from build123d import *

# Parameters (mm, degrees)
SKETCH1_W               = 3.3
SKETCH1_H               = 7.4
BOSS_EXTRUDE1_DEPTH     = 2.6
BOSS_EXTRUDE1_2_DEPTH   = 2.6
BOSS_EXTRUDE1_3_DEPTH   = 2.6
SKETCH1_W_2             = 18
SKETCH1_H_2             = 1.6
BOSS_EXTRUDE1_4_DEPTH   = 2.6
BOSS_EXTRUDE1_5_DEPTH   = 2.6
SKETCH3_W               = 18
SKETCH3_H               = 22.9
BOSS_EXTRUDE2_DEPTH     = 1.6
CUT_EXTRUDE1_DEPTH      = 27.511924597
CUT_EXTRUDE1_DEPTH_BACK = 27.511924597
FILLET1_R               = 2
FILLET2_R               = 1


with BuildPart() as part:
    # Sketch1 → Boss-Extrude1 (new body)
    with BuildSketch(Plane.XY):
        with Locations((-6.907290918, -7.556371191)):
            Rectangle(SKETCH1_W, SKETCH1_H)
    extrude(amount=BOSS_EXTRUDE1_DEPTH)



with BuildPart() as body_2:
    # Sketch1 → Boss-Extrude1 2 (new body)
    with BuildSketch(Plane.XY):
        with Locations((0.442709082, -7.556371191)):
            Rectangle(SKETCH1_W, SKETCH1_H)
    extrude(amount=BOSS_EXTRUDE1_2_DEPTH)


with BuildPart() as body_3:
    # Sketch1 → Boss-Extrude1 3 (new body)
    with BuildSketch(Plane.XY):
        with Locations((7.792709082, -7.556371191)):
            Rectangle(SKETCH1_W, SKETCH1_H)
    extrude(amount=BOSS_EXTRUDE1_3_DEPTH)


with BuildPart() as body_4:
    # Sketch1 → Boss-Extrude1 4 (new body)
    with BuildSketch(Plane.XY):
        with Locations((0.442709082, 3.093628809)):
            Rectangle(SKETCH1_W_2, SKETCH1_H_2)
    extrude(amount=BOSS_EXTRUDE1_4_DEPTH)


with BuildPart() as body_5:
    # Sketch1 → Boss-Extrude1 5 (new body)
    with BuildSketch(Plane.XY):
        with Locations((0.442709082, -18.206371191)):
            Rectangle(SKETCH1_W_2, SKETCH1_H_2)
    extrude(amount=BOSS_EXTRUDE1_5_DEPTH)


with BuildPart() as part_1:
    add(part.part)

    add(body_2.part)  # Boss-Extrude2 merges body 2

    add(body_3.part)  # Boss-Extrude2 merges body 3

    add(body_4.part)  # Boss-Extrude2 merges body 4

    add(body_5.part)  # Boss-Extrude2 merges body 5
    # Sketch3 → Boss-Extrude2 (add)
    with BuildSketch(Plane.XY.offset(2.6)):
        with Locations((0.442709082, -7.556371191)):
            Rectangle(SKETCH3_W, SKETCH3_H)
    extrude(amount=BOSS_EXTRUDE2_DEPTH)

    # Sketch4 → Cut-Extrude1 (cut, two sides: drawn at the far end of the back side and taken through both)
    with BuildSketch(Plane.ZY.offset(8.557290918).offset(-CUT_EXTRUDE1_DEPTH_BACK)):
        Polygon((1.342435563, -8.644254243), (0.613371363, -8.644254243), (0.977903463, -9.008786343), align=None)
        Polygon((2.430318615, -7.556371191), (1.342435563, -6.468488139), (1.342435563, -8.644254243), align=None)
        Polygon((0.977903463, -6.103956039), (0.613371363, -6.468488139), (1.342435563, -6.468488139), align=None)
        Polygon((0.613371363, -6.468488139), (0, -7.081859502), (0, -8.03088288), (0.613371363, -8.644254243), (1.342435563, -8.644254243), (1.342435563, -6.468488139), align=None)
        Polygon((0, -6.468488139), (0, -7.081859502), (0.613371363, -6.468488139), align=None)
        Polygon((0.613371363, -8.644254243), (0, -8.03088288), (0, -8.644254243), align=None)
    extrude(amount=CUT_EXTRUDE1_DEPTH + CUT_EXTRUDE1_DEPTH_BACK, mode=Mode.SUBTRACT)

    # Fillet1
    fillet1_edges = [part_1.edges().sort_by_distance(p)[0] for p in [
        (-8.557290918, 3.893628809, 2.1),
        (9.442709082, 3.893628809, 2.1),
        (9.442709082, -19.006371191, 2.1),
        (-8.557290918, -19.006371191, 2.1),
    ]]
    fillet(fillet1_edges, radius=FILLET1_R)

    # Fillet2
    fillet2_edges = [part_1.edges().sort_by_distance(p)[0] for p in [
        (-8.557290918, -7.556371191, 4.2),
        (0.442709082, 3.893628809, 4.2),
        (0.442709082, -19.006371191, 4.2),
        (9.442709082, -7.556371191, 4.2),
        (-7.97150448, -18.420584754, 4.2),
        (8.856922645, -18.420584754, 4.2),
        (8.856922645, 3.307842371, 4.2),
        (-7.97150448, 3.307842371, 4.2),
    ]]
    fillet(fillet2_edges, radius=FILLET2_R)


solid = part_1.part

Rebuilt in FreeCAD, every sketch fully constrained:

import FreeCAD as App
import Part
import Sketcher
from FreeCAD import Vector
Q = App.Units.Quantity


def edges_at(feature, points):
    """Names of the edges that pass closest to the given points."""
    edges = feature.Shape.Edges
    near = lambda p: min(range(len(edges)), key=lambda i: edges[i].distToShape(Part.Vertex(*p))[0])
    return sorted({f"Edge{near(p) + 1}" for p in points})

doc = App.newDocument("Part")
body = doc.addObject("PartDesign::Body", "Body")

sketch1 = body.newObject("Sketcher::SketchObject", "Sketch")
sketch1.AttachmentSupport = (doc.getObject("XY_Plane"), [""])
sketch1.MapMode = "FlatFace"
sketch1.addGeometry(Part.LineSegment(Vector(-8.6, -3.9, 0), Vector(-8.6, -11.3, 0)), False)
sketch1.addGeometry(Part.LineSegment(Vector(-8.6, -11.3, 0), Vector(-5.3, -11.3, 0)), False)
sketch1.addGeometry(Part.LineSegment(Vector(-5.3, -11.3, 0), Vector(-5.3, -3.9, 0)), False)
sketch1.addGeometry(Part.LineSegment(Vector(-5.3, -3.9, 0), Vector(-8.6, -3.9, 0)), False)
sketch1.addConstraint(Sketcher.Constraint("Coincident", 0, 2, 1, 1))
sketch1.addConstraint(Sketcher.Constraint("Coincident", 1, 2, 2, 1))
sketch1.addConstraint(Sketcher.Constraint("Coincident", 2, 2, 3, 1))
sketch1.addConstraint(Sketcher.Constraint("Coincident", 3, 2, 0, 1))
sketch1.addConstraint(Sketcher.Constraint("Vertical", 0))
sketch1.addConstraint(Sketcher.Constraint("Horizontal", 1))
sketch1.addConstraint(Sketcher.Constraint("Vertical", 2))
sketch1.addConstraint(Sketcher.Constraint("Horizontal", 3))
sketch1.addConstraint(Sketcher.Constraint("DistanceX", 1, 1, 1, 2, Q("3.3 mm")))
sketch1.addConstraint(Sketcher.Constraint("DistanceY", 0, 2, 0, 1, Q("7.4 mm")))
sketch1.addConstraint(Sketcher.Constraint("DistanceX", 0, 2, -1, 1, Q("8.557291 mm")))
sketch1.addConstraint(Sketcher.Constraint("DistanceY", 0, 2, -1, 1, Q("11.256371 mm")))
pad1 = body.newObject("PartDesign::Pad", "Pad")
pad1.Profile = sketch1
pad1.Length = 2.6
body2 = doc.addObject("PartDesign::Body", "Body001")

sketch2 = body2.newObject("Sketcher::SketchObject", "Sketch001")
sketch2.AttachmentSupport = (doc.getObject("XY_Plane001"), [""])
sketch2.MapMode = "FlatFace"
sketch2.addGeometry(Part.LineSegment(Vector(-1.2, -3.9, 0), Vector(-1.2, -11.3, 0)), False)
sketch2.addGeometry(Part.LineSegment(Vector(-1.2, -11.3, 0), Vector(2.1, -11.3, 0)), False)
sketch2.addGeometry(Part.LineSegment(Vector(2.1, -11.3, 0), Vector(2.1, -3.9, 0)), False)
sketch2.addGeometry(Part.LineSegment(Vector(2.1, -3.9, 0), Vector(-1.2, -3.9, 0)), False)
sketch2.addConstraint(Sketcher.Constraint("Coincident", 0, 2, 1, 1))
sketch2.addConstraint(Sketcher.Constraint("Coincident", 1, 2, 2, 1))
sketch2.addConstraint(Sketcher.Constraint("Coincident", 2, 2, 3, 1))
sketch2.addConstraint(Sketcher.Constraint("Coincident", 3, 2, 0, 1))
sketch2.addConstraint(Sketcher.Constraint("Vertical", 0))
sketch2.addConstraint(Sketcher.Constraint("Horizontal", 1))
sketch2.addConstraint(Sketcher.Constraint("Vertical", 2))
sketch2.addConstraint(Sketcher.Constraint("Horizontal", 3))
sketch2.addConstraint(Sketcher.Constraint("DistanceX", 1, 1, 1, 2, Q("3.3 mm")))
sketch2.addConstraint(Sketcher.Constraint("DistanceY", 0, 2, 0, 1, Q("7.4 mm")))
sketch2.addConstraint(Sketcher.Constraint("DistanceX", 0, 2, -1, 1, Q("1.207291 mm")))
sketch2.addConstraint(Sketcher.Constraint("DistanceY", 0, 2, -1, 1, Q("11.256371 mm")))
pad2 = body2.newObject("PartDesign::Pad", "Pad001")
pad2.Profile = sketch2
pad2.Length = 2.6
body3 = doc.addObject("PartDesign::Body", "Body002")

sketch3 = body3.newObject("Sketcher::SketchObject", "Sketch002")
sketch3.AttachmentSupport = (doc.getObject("XY_Plane002"), [""])
sketch3.MapMode = "FlatFace"
sketch3.addGeometry(Part.LineSegment(Vector(6.1, -3.9, 0), Vector(6.1, -11.3, 0)), False)
sketch3.addGeometry(Part.LineSegment(Vector(6.1, -11.3, 0), Vector(9.4, -11.3, 0)), False)
sketch3.addGeometry(Part.LineSegment(Vector(9.4, -11.3, 0), Vector(9.4, -3.9, 0)), False)
sketch3.addGeometry(Part.LineSegment(Vector(9.4, -3.9, 0), Vector(6.1, -3.9, 0)), False)
sketch3.addConstraint(Sketcher.Constraint("Coincident", 0, 2, 1, 1))
sketch3.addConstraint(Sketcher.Constraint("Coincident", 1, 2, 2, 1))
sketch3.addConstraint(Sketcher.Constraint("Coincident", 2, 2, 3, 1))
sketch3.addConstraint(Sketcher.Constraint("Coincident", 3, 2, 0, 1))
sketch3.addConstraint(Sketcher.Constraint("Vertical", 0))
sketch3.addConstraint(Sketcher.Constraint("Horizontal", 1))
sketch3.addConstraint(Sketcher.Constraint("Vertical", 2))
sketch3.addConstraint(Sketcher.Constraint("Horizontal", 3))
sketch3.addConstraint(Sketcher.Constraint("DistanceX", 1, 1, 1, 2, Q("3.3 mm")))
sketch3.addConstraint(Sketcher.Constraint("DistanceY", 0, 2, 0, 1, Q("7.4 mm")))
sketch3.addConstraint(Sketcher.Constraint("DistanceX", -1, 1, 0, 2, Q("6.142709 mm")))
sketch3.addConstraint(Sketcher.Constraint("DistanceY", 0, 2, -1, 1, Q("11.256371 mm")))
pad3 = body3.newObject("PartDesign::Pad", "Pad002")
pad3.Profile = sketch3
pad3.Length = 2.6
body4 = doc.addObject("PartDesign::Body", "Body003")

sketch4 = body4.newObject("Sketcher::SketchObject", "Sketch003")
sketch4.AttachmentSupport = (doc.getObject("XY_Plane003"), [""])
sketch4.MapMode = "FlatFace"
sketch4.addGeometry(Part.LineSegment(Vector(-8.6, 3.9, 0), Vector(-8.6, 2.3, 0)), False)
sketch4.addGeometry(Part.LineSegment(Vector(-8.6, 2.3, 0), Vector(9.4, 2.3, 0)), False)
sketch4.addGeometry(Part.LineSegment(Vector(9.4, 2.3, 0), Vector(9.4, 3.9, 0)), False)
sketch4.addGeometry(Part.LineSegment(Vector(9.4, 3.9, 0), Vector(-8.6, 3.9, 0)), False)
sketch4.addConstraint(Sketcher.Constraint("Coincident", 0, 2, 1, 1))
sketch4.addConstraint(Sketcher.Constraint("Coincident", 1, 2, 2, 1))
sketch4.addConstraint(Sketcher.Constraint("Coincident", 2, 2, 3, 1))
sketch4.addConstraint(Sketcher.Constraint("Coincident", 3, 2, 0, 1))
sketch4.addConstraint(Sketcher.Constraint("Vertical", 0))
sketch4.addConstraint(Sketcher.Constraint("Horizontal", 1))
sketch4.addConstraint(Sketcher.Constraint("Vertical", 2))
sketch4.addConstraint(Sketcher.Constraint("Horizontal", 3))
sketch4.addConstraint(Sketcher.Constraint("DistanceX", 1, 1, 1, 2, Q("18 mm")))
sketch4.addConstraint(Sketcher.Constraint("DistanceY", 0, 2, 0, 1, Q("1.6 mm")))
sketch4.addConstraint(Sketcher.Constraint("DistanceX", 0, 2, -1, 1, Q("8.557291 mm")))
sketch4.addConstraint(Sketcher.Constraint("DistanceY", -1, 1, 0, 2, Q("2.293629 mm")))
pad4 = body4.newObject("PartDesign::Pad", "Pad003")
pad4.Profile = sketch4
pad4.Length = 2.6
body5 = doc.addObject("PartDesign::Body", "Body004")

sketch5 = body5.newObject("Sketcher::SketchObject", "Sketch004")
sketch5.AttachmentSupport = (doc.getObject("XY_Plane004"), [""])
sketch5.MapMode = "FlatFace"
sketch5.addGeometry(Part.LineSegment(Vector(-8.6, -17.4, 0), Vector(-8.6, -19, 0)), False)
sketch5.addGeometry(Part.LineSegment(Vector(-8.6, -19, 0), Vector(9.4, -19, 0)), False)
sketch5.addGeometry(Part.LineSegment(Vector(9.4, -19, 0), Vector(9.4, -17.4, 0)), False)
sketch5.addGeometry(Part.LineSegment(Vector(9.4, -17.4, 0), Vector(-8.6, -17.4, 0)), False)
sketch5.addConstraint(Sketcher.Constraint("Coincident", 0, 2, 1, 1))
sketch5.addConstraint(Sketcher.Constraint("Coincident", 1, 2, 2, 1))
sketch5.addConstraint(Sketcher.Constraint("Coincident", 2, 2, 3, 1))
sketch5.addConstraint(Sketcher.Constraint("Coincident", 3, 2, 0, 1))
sketch5.addConstraint(Sketcher.Constraint("Vertical", 0))
sketch5.addConstraint(Sketcher.Constraint("Horizontal", 1))
sketch5.addConstraint(Sketcher.Constraint("Vertical", 2))
sketch5.addConstraint(Sketcher.Constraint("Horizontal", 3))
sketch5.addConstraint(Sketcher.Constraint("DistanceX", 1, 1, 1, 2, Q("18 mm")))
sketch5.addConstraint(Sketcher.Constraint("DistanceY", 0, 2, 0, 1, Q("1.6 mm")))
sketch5.addConstraint(Sketcher.Constraint("DistanceX", 0, 2, -1, 1, Q("8.557291 mm")))
sketch5.addConstraint(Sketcher.Constraint("DistanceY", 0, 2, -1, 1, Q("19.006371 mm")))
pad5 = body5.newObject("PartDesign::Pad", "Pad004")
pad5.Profile = sketch5
pad5.Length = 2.6
body.AllowCompound = True
doc.recompute()

boolean = body.newObject("PartDesign::Boolean", "Boolean")
boolean.Type = "Fuse"
boolean.addObjects([body2])
doc.recompute()

boolean2 = body.newObject("PartDesign::Boolean", "Boolean001")
boolean2.Type = "Fuse"
boolean2.addObjects([body3])
doc.recompute()

boolean3 = body.newObject("PartDesign::Boolean", "Boolean002")
boolean3.Type = "Fuse"
boolean3.addObjects([body4])
doc.recompute()

boolean4 = body.newObject("PartDesign::Boolean", "Boolean003")
boolean4.Type = "Fuse"
boolean4.addObjects([body5])

sketch6 = body.newObject("Sketcher::SketchObject", "Sketch005")
sketch6.AttachmentSupport = (doc.getObject("XY_Plane"), [""])
sketch6.MapMode = "FlatFace"
sketch6.AttachmentOffset = App.Placement(Vector(0, 0, 2.6), App.Rotation())
sketch6.addGeometry(Part.LineSegment(Vector(-9, 4, 0), Vector(-9, -19, 0)), False)
sketch6.addGeometry(Part.LineSegment(Vector(-9, -19, 0), Vector(9, -19, 0)), False)
sketch6.addGeometry(Part.LineSegment(Vector(9, -19, 0), Vector(9, 4, 0)), False)
sketch6.addGeometry(Part.LineSegment(Vector(9, 4, 0), Vector(-9, 4, 0)), False)
sketch6.addConstraint(Sketcher.Constraint("Coincident", 0, 2, 1, 1))
sketch6.addConstraint(Sketcher.Constraint("Coincident", 1, 2, 2, 1))
sketch6.addConstraint(Sketcher.Constraint("Coincident", 2, 2, 3, 1))
sketch6.addConstraint(Sketcher.Constraint("Coincident", 3, 2, 0, 1))
sketch6.addConstraint(Sketcher.Constraint("Vertical", 0))
sketch6.addConstraint(Sketcher.Constraint("Horizontal", 1))
sketch6.addConstraint(Sketcher.Constraint("Vertical", 2))
sketch6.addConstraint(Sketcher.Constraint("Horizontal", 3))
sketch6.addConstraint(Sketcher.Constraint("DistanceX", 1, 1, 1, 2, Q("18 mm")))
sketch6.addConstraint(Sketcher.Constraint("DistanceY", 0, 2, 0, 1, Q("22.9 mm")))
sketch6.addConstraint(Sketcher.Constraint("DistanceX", 0, 2, -1, 1, Q("8.557291 mm")))
sketch6.addConstraint(Sketcher.Constraint("DistanceY", 0, 2, -1, 1, Q("19.006371 mm")))
pad6 = body.newObject("PartDesign::Pad", "Pad005")
pad6.Profile = sketch6
pad6.Length = 1.6

sketch7 = body.newObject("Sketcher::SketchObject", "Sketch006")
sketch7.AttachmentSupport = (doc.getObject("YZ_Plane"), [""])
sketch7.MapMode = "FlatFace"
sketch7.AttachmentOffset = App.Placement(Vector(0, 0, -8.557291), App.Rotation())
sketch7.addGeometry(Part.LineSegment(Vector(-9, 1, 0), Vector(-7.6, 2.4, 0)), False)
sketch7.addGeometry(Part.LineSegment(Vector(-7.6, 2.4, 0), Vector(-6.1, 1, 0)), False)
sketch7.addGeometry(Part.LineSegment(Vector(-6.1, 1, 0), Vector(-6.5, 0.6, 0)), False)
sketch7.addGeometry(Part.LineSegment(Vector(-6.5, 0.6, 0), Vector(-6.5, 0, 0)), False)
sketch7.addGeometry(Part.LineSegment(Vector(-6.5, 0, 0), Vector(-8.6, 0, 0)), False)
sketch7.addGeometry(Part.LineSegment(Vector(-8.6, 0, 0), Vector(-8.6, 0.6, 0)), False)
sketch7.addGeometry(Part.LineSegment(Vector(-8.6, 0.6, 0), Vector(-9, 1, 0)), False)
sketch7.addConstraint(Sketcher.Constraint("Coincident", 0, 2, 1, 1))
sketch7.addConstraint(Sketcher.Constraint("Coincident", 1, 2, 2, 1))
sketch7.addConstraint(Sketcher.Constraint("Coincident", 2, 2, 3, 1))
sketch7.addConstraint(Sketcher.Constraint("Coincident", 3, 2, 4, 1))
sketch7.addConstraint(Sketcher.Constraint("Coincident", 4, 2, 5, 1))
sketch7.addConstraint(Sketcher.Constraint("Coincident", 5, 2, 6, 1))
sketch7.addConstraint(Sketcher.Constraint("Coincident", 6, 2, 0, 1))
sketch7.addConstraint(Sketcher.Constraint("Vertical", 3))
sketch7.addConstraint(Sketcher.Constraint("Horizontal", 4))
sketch7.addConstraint(Sketcher.Constraint("Vertical", 5))
sketch7.addConstraint(Sketcher.Constraint("PointOnObject", 3, 2, -1))
sketch7.addConstraint(Sketcher.Constraint("Perpendicular", 0, 1))
sketch7.addConstraint(Sketcher.Constraint("Perpendicular", 1, 2))
sketch7.addConstraint(Sketcher.Constraint("Perpendicular", 2, 6))
sketch7.addConstraint(Sketcher.Constraint("Horizontal", 2, 2, 5, 2))
sketch7.addConstraint(Sketcher.Constraint("Horizontal", 1, 2, 6, 2))
sketch7.addConstraint(Sketcher.Constraint("Equal", 0, 1))
sketch7.addConstraint(Sketcher.Constraint("DistanceY", 3, 2, 3, 1, Q("0.613371 mm")))
sketch7.addConstraint(Sketcher.Constraint("DistanceX", 4, 2, 1, 2, Q("2.540298 mm")))
sketch7.addConstraint(Sketcher.Constraint("DistanceX", 4, 2, 4, 1, Q("2.175766 mm")))
sketch7.addConstraint(Sketcher.Constraint("DistanceX", 0, 2, -1, 1, Q("7.556371 mm")))
pocket1 = body.newObject("PartDesign::Pocket", "Pocket")
pocket1.Profile = sketch7
pocket1.Type = "ThroughAll"
pocket1.Midplane = True
doc.recompute()

fillet = body.newObject("PartDesign::Fillet", "Fillet")
fillet.Base = (pocket1, edges_at(pocket1, [
    (-8.557, 3.894, 2.1),
    (9.443, 3.894, 2.1),
    (9.443, -19.006, 2.1),
    (-8.557, -19.006, 2.1),
]))
fillet.Radius = 2
doc.recompute()

fillet2 = body.newObject("PartDesign::Fillet", "Fillet001")
fillet2.Base = (fillet, edges_at(fillet, [
    (-8.557, -7.556, 4.2),
    (0.443, 3.894, 4.2),
    (0.443, -19.006, 4.2),
    (9.443, -7.556, 4.2),
    (-7.972, -18.421, 4.2),
    (8.857, -18.421, 4.2),
    (8.857, 3.308, 4.2),
    (-7.972, 3.308, 4.2),
]))
fillet2.Radius = 1

doc.recompute()
